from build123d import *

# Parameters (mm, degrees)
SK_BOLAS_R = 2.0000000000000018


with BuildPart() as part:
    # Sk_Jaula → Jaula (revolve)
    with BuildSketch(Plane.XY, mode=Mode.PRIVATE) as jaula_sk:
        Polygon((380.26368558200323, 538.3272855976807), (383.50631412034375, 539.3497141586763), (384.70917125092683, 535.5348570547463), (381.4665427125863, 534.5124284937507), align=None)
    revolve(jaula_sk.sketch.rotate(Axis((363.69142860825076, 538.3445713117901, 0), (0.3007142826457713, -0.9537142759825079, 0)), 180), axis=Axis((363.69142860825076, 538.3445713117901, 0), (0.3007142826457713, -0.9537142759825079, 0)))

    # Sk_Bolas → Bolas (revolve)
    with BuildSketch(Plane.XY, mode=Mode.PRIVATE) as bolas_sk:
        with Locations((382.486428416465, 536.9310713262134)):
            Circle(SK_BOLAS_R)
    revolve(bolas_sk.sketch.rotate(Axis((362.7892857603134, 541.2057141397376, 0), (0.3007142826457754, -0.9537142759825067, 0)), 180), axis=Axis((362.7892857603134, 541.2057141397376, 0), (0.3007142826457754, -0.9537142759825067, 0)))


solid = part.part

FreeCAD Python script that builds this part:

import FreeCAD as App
import Part
import Sketcher

V = App.Vector
Q = App.Units.Quantity


def add_polygon(sketch, points):
    """Adds a closed chain of lines whose ends are joined by coincident constraints."""
    first, n = sketch.GeometryCount, len(points)
    for a, b in zip(points, points[1:] + points[:1]):
        sketch.addGeometry(Part.LineSegment(App.Vector(*a, 0), App.Vector(*b, 0)), False)
    for i in range(n):
        sketch.addConstraint(Sketcher.Constraint("Coincident", first + i, 2, first + (i + 1) % n, 1))

doc = App.newDocument("Part")
body = doc.addObject("PartDesign::Body", "Body")

# Sketch on XY plane
sketch1 = doc.addObject("Sketcher::SketchObject", "Sketch")
body.addObject(sketch1)
sketch1.AttachmentSupport = (doc.XY_Plane, [""])
sketch1.MapMode = "FlatFace"
add_polygon(sketch1, [(383.5, 539.3), (380.3, 538.3), (381.5, 534.5), (384.7, 535.5)])  # lines 0-3
sketch1.addGeometry(Part.LineSegment(V(365.2, 533.6, 0), V(366.4, 529.8, 0)), True)  # axis
sketch1.addConstraint([
    Sketcher.Constraint("Perpendicular", 0, 1),
    Sketcher.Constraint("Perpendicular", 1, 2),
    Sketcher.Constraint("Perpendicular", 2, 3),
    Sketcher.Constraint("Parallel", 3, 4),
    Sketcher.Constraint("Equal", 3, 4),
    Sketcher.Constraint("Distance", 1, Q("4 mm")),
    Sketcher.Constraint("Distance", 0, Q("3.4 mm")),
    Sketcher.Constraint("DistanceX", -1, 1, 4, 1, Q("365.195 mm")),
    Sketcher.Constraint("DistanceY", -1, 1, 4, 1, Q("533.576 mm")),
    Sketcher.Constraint("DistanceY", -1, 1, 1, 2, Q("534.512428 mm")),
    Sketcher.Constraint("DistanceX", -1, 1, 2, 2, Q("384.709171 mm")),
    Sketcher.Constraint("DistanceX", 1, 2, 2, 2, Q("3.242629 mm")),
])
revolution = doc.addObject("PartDesign::Revolution", "Revolution")
body.addObject(revolution)
revolution.Profile = sketch1
revolution.ReferenceAxis = (sketch1, ["Axis0"])
revolution.Angle = 360

# Sketch on XY plane
sketch2 = doc.addObject("Sketcher::SketchObject", "Sketch001")
body.addObject(sketch2)
sketch2.AttachmentSupport = (doc.XY_Plane, [""])
sketch2.MapMode = "FlatFace"
sketch2.addGeometry(Part.Circle(V(382.5, 536.9, 0), V(0, 0, 1), 2), False)
sketch2.addGeometry(Part.LineSegment(V(365.8, 531.7, 0), V(368.8, 522.1, 0)), True)  # axis
sketch2.addConstraint([
    Sketcher.Constraint("Diameter", 0, Q("4 mm")),
    Sketcher.Constraint("Distance", 1, Q("10 mm")),
    Sketcher.Constraint("DistanceX", 1, 1, 0, 3, Q("16.69 mm")),
    Sketcher.Constraint("DistanceY", 1, 1, 0, 3, Q("5.2625 mm")),
    Sketcher.Constraint("DistanceX", -1, 1, 0, 3, Q("382.486428 mm")),
    Sketcher.Constraint("DistanceY", -1, 1, 0, 3, Q("536.931071 mm")),
    Sketcher.Constraint("DistanceX", -1, 1, 1, 2, Q("368.803571 mm")),
])
revolution2 = doc.addObject("PartDesign::Revolution", "Revolution001")
body.addObject(revolution2)
revolution2.Profile = sketch2
revolution2.ReferenceAxis = (sketch2, ["Axis0"])
revolution2.Angle = 360

doc.recompute()
